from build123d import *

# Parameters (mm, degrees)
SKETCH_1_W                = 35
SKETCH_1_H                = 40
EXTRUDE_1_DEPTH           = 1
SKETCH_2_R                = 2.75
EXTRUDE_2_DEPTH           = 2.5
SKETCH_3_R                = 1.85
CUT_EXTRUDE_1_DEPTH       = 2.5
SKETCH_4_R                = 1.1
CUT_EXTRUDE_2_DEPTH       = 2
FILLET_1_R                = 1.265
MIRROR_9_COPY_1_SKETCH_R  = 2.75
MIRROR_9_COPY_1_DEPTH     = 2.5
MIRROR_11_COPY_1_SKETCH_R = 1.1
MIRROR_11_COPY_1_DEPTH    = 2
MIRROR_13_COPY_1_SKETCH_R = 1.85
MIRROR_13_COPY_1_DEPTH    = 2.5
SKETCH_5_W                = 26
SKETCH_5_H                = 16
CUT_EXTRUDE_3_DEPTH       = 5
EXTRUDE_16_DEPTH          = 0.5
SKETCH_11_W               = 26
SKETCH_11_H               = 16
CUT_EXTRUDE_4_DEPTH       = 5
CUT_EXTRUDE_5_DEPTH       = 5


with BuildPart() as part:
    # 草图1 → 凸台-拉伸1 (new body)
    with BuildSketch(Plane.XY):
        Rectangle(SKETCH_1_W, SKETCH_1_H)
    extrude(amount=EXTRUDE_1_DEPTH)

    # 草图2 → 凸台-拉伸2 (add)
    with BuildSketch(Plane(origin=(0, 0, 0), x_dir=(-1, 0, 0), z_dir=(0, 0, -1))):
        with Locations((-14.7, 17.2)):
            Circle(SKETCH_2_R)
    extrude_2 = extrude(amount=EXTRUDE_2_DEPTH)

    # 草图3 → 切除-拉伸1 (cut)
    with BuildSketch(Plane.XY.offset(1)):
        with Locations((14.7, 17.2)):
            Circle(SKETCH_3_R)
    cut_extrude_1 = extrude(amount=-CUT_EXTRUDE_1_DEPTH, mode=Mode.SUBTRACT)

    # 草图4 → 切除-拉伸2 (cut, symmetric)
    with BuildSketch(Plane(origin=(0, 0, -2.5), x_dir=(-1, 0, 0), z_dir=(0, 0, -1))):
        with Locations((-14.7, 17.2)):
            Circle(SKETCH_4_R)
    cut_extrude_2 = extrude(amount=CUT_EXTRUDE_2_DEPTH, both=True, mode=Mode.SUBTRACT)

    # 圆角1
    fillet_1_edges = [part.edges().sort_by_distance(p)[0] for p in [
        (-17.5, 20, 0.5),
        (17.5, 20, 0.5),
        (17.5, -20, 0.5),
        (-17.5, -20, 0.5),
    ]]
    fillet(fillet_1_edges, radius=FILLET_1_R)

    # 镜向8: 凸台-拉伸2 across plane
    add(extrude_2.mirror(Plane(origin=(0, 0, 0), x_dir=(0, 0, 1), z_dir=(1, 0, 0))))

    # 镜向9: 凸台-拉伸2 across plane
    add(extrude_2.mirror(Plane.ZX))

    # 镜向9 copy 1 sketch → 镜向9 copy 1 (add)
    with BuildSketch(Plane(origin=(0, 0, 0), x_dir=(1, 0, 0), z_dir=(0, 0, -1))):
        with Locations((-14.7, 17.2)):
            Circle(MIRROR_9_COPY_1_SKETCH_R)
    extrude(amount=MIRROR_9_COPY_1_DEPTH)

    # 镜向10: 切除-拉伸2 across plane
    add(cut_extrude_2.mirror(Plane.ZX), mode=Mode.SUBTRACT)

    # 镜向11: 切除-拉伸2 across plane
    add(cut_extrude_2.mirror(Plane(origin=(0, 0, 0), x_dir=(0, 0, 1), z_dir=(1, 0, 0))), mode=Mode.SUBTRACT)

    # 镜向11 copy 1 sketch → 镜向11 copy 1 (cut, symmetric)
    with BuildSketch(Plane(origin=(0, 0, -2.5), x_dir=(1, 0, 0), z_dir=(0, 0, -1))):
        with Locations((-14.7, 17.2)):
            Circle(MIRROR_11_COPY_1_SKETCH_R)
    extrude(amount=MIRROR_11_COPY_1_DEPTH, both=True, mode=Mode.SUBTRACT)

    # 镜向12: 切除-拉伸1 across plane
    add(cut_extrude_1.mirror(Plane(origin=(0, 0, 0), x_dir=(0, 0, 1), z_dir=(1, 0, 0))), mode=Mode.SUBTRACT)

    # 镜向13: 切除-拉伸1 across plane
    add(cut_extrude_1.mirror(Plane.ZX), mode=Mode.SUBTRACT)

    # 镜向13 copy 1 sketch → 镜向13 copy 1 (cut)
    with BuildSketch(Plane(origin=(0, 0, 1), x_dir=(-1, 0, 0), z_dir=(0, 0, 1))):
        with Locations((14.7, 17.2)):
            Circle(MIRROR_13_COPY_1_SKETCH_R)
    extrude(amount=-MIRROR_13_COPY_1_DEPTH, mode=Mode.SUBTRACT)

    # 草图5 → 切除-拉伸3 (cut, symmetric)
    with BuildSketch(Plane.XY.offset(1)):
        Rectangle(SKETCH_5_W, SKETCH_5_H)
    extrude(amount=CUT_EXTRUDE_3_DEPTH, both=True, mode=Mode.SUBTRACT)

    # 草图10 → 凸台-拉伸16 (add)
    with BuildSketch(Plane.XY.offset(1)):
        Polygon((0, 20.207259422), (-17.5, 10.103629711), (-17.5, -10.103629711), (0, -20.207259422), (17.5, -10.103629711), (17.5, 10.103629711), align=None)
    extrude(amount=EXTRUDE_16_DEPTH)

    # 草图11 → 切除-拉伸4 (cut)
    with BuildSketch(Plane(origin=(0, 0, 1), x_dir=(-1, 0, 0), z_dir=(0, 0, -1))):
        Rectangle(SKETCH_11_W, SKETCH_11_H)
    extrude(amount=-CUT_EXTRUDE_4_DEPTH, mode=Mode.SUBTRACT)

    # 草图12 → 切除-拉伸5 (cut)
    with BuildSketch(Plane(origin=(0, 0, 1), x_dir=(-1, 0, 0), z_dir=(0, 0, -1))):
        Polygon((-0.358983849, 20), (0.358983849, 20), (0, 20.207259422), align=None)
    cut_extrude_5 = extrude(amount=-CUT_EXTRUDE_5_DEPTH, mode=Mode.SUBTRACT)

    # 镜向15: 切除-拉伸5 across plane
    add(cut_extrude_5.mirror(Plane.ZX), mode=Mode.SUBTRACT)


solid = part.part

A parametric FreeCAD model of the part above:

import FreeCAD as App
import Part
import Sketcher
from FreeCAD import Vector
Q = App.Units.Quantity


def edges_at(feature, points):
    """Names of the edges that pass closest to the given points."""
    edges = feature.Shape.Edges
    near = lambda p: min(range(len(edges)), key=lambda i: edges[i].distToShape(Part.Vertex(*p))[0])
    return sorted({f"Edge{near(p) + 1}" for p in points})

doc = App.newDocument("Part")
body = doc.addObject("PartDesign::Body", "Body")

# Sketch on XY plane
sketch1 = doc.addObject("Sketcher::SketchObject", "Sketch")
body.addObject(sketch1)
sketch1.AttachmentSupport = (doc.XY_Plane, [""])
sketch1.MapMode = "FlatFace"
sketch1.addGeometry(Part.LineSegment(Vector(-18, 20, 0), Vector(-18, -20, 0)), False)
sketch1.addGeometry(Part.LineSegment(Vector(-18, -20, 0), Vector(18, -20, 0)), False)
sketch1.addGeometry(Part.LineSegment(Vector(18, -20, 0), Vector(18, 20, 0)), False)
sketch1.addGeometry(Part.LineSegment(Vector(18, 20, 0), Vector(-18, 20, 0)), False)
sketch1.addConstraint(Sketcher.Constraint("Coincident", 0, 2, 1, 1))
sketch1.addConstraint(Sketcher.Constraint("Coincident", 1, 2, 2, 1))
sketch1.addConstraint(Sketcher.Constraint("Coincident", 2, 2, 3, 1))
sketch1.addConstraint(Sketcher.Constraint("Coincident", 3, 2, 0, 1))
sketch1.addConstraint(Sketcher.Constraint("Vertical", 0))
sketch1.addConstraint(Sketcher.Constraint("Horizontal", 1))
sketch1.addConstraint(Sketcher.Constraint("Vertical", 2))
sketch1.addConstraint(Sketcher.Constraint("Horizontal", 3))
sketch1.addConstraint(Sketcher.Constraint("Symmetric", 0, 2, 2, 2, -1, 1))
sketch1.addConstraint(Sketcher.Constraint("DistanceX", 1, 1, 1, 2, Q("35 mm")))
sketch1.addConstraint(Sketcher.Constraint("DistanceY", 0, 2, 0, 1, Q("40 mm")))
pad1 = doc.addObject("PartDesign::Pad", "Pad")
body.addObject(pad1)
pad1.Profile = sketch1
pad1.Length = 1

# Sketch on XY plane
sketch2 = doc.addObject("Sketcher::SketchObject", "Sketch001")
body.addObject(sketch2)
sketch2.AttachmentSupport = (doc.XY_Plane, [""])
sketch2.MapMode = "FlatFace"
sketch2.addGeometry(Part.Circle(Vector(14.7, 17.2, 0), Vector(0, 0, 1), 2.8), False)
sketch2.addConstraint(Sketcher.Constraint("Diameter", 0, Q("5.5 mm")))
sketch2.addConstraint(Sketcher.Constraint("DistanceX", -1, 1, 0, 3, Q("14.7 mm")))
sketch2.addConstraint(Sketcher.Constraint("DistanceY", -1, 1, 0, 3, Q("17.2 mm")))
pad2 = doc.addObject("PartDesign::Pad", "Pad001")
body.addObject(pad2)
pad2.Profile = sketch2
pad2.Length = 2.5
pad2.Reversed = True

# Sketch on XY plane
sketch3 = doc.addObject("Sketcher::SketchObject", "Sketch002")
body.addObject(sketch3)
sketch3.AttachmentSupport = (doc.XY_Plane, [""])
sketch3.MapMode = "FlatFace"
sketch3.AttachmentOffset = App.Placement(Vector(0, 0, 1), App.Rotation())
sketch3.addGeometry(Part.Circle(Vector(14.7, 17.2, 0), Vector(0, 0, 1), 1.9), False)
sketch3.addConstraint(Sketcher.Constraint("Diameter", 0, Q("3.7 mm")))
sketch3.addConstraint(Sketcher.Constraint("DistanceX", -1, 1, 0, 3, Q("14.7 mm")))
sketch3.addConstraint(Sketcher.Constraint("DistanceY", -1, 1, 0, 3, Q("17.2 mm")))
pocket1 = doc.addObject("PartDesign::Pocket", "Pocket")
body.addObject(pocket1)
pocket1.Profile = sketch3
pocket1.Length = 2.5

# Sketch on XY plane
sketch4 = doc.addObject("Sketcher::SketchObject", "Sketch003")
body.addObject(sketch4)
sketch4.AttachmentSupport = (doc.XY_Plane, [""])
sketch4.MapMode = "FlatFace"
sketch4.AttachmentOffset = App.Placement(Vector(0, 0, -2.5), App.Rotation())
sketch4.addGeometry(Part.Circle(Vector(14.7, 17.2, 0), Vector(0, 0, 1), 1.1), False)
sketch4.addConstraint(Sketcher.Constraint("Diameter", 0, Q("2.2 mm")))
sketch4.addConstraint(Sketcher.Constraint("DistanceX", -1, 1, 0, 3, Q("14.7 mm")))
sketch4.addConstraint(Sketcher.Constraint("DistanceY", -1, 1, 0, 3, Q("17.2 mm")))
pocket2 = doc.addObject("PartDesign::Pocket", "Pocket001")
body.addObject(pocket2)
pocket2.Profile = sketch4
pocket2.Length = 4
pocket2.Midplane = True
doc.recompute()

fillet = doc.addObject("PartDesign::Fillet", "Fillet")
body.addObject(fillet)
fillet.Base = (pocket2, edges_at(pocket2, [
    (-17.5, 20, 0.5),
    (17.5, 20, 0.5),
    (17.5, -20, 0.5),
    (-17.5, -20, 0.5),
]))
fillet.Radius = 1.265
doc.recompute()

mirrored = doc.addObject("PartDesign::Mirrored", "Mirrored")
body.addObject(mirrored)
mirrored.Originals = [pad2]
mirrored.MirrorPlane = (doc.YZ_Plane, [""])
body.Tip = mirrored
doc.recompute()

mirrored2 = doc.addObject("PartDesign::Mirrored", "Mirrored001")
body.addObject(mirrored2)
mirrored2.Originals = [pad2]
mirrored2.MirrorPlane = (doc.XZ_Plane, [""])
body.Tip = mirrored2

# Sketch on XY plane
sketch5 = doc.addObject("Sketcher::SketchObject", "Sketch004")
body.addObject(sketch5)
sketch5.AttachmentSupport = (doc.XY_Plane, [""])
sketch5.MapMode = "FlatFace"
sketch5.addGeometry(Part.Circle(Vector(-14.7, -17.2, 0), Vector(0, 0, 1), 2.8), False)
sketch5.addConstraint(Sketcher.Constraint("Diameter", 0, Q("5.5 mm")))
sketch5.addConstraint(Sketcher.Constraint("DistanceX", 0, 3, -1, 1, Q("14.7 mm")))
sketch5.addConstraint(Sketcher.Constraint("DistanceY", 0, 3, -1, 1, Q("17.2 mm")))
pad3 = doc.addObject("PartDesign::Pad", "Pad002")
body.addObject(pad3)
pad3.Profile = sketch5
pad3.Length = 2.5
pad3.Reversed = True
doc.recompute()

mirrored3 = doc.addObject("PartDesign::Mirrored", "Mirrored002")
body.addObject(mirrored3)
mirrored3.Originals = [pocket2]
mirrored3.MirrorPlane = (doc.XZ_Plane, [""])
body.Tip = mirrored3
doc.recompute()

mirrored4 = doc.addObject("PartDesign::Mirrored", "Mirrored003")
body.addObject(mirrored4)
mirrored4.Originals = [pocket2]
mirrored4.MirrorPlane = (doc.YZ_Plane, [""])
body.Tip = mirrored4

# Sketch on XY plane
sketch6 = doc.addObject("Sketcher::SketchObject", "Sketch005")
body.addObject(sketch6)
sketch6.AttachmentSupport = (doc.XY_Plane, [""])
sketch6.MapMode = "FlatFace"
sketch6.AttachmentOffset = App.Placement(Vector(0, 0, -2.5), App.Rotation())
sketch6.addGeometry(Part.Circle(Vector(-14.7, -17.2, 0), Vector(0, 0, 1), 1.1), False)
sketch6.addConstraint(Sketcher.Constraint("Diameter", 0, Q("2.2 mm")))
sketch6.addConstraint(Sketcher.Constraint("DistanceX", 0, 3, -1, 1, Q("14.7 mm")))
sketch6.addConstraint(Sketcher.Constraint("DistanceY", 0, 3, -1, 1, Q("17.2 mm")))
pocket3 = doc.addObject("PartDesign::Pocket", "Pocket002")
body.addObject(pocket3)
pocket3.Profile = sketch6
pocket3.Length = 4
pocket3.Midplane = True
doc.recompute()

mirrored5 = doc.addObject("PartDesign::Mirrored", "Mirrored004")
body.addObject(mirrored5)
mirrored5.Originals = [pocket1]
mirrored5.MirrorPlane = (doc.YZ_Plane, [""])
body.Tip = mirrored5
doc.recompute()

mirrored6 = doc.addObject("PartDesign::Mirrored", "Mirrored005")
body.addObject(mirrored6)
mirrored6.Originals = [pocket1]
mirrored6.MirrorPlane = (doc.XZ_Plane, [""])
body.Tip = mirrored6

# Sketch on XY plane
sketch7 = doc.addObject("Sketcher::SketchObject", "Sketch006")
body.addObject(sketch7)
sketch7.AttachmentSupport = (doc.XY_Plane, [""])
sketch7.MapMode = "FlatFace"
sketch7.AttachmentOffset = App.Placement(Vector(0, 0, 1), App.Rotation())
sketch7.addGeometry(Part.Circle(Vector(-14.7, -17.2, 0), Vector(0, 0, 1), 1.9), False)
sketch7.addConstraint(Sketcher.Constraint("Diameter", 0, Q("3.7 mm")))
sketch7.addConstraint(Sketcher.Constraint("DistanceX", 0, 3, -1, 1, Q("14.7 mm")))
sketch7.addConstraint(Sketcher.Constraint("DistanceY", 0, 3, -1, 1, Q("17.2 mm")))
pocket4 = doc.addObject("PartDesign::Pocket", "Pocket003")
body.addObject(pocket4)
pocket4.Profile = sketch7
pocket4.Length = 2.5

# Sketch on XY plane
sketch8 = doc.addObject("Sketcher::SketchObject", "Sketch007")
body.addObject(sketch8)
sketch8.AttachmentSupport = (doc.XY_Plane, [""])
sketch8.MapMode = "FlatFace"
sketch8.AttachmentOffset = App.Placement(Vector(0, 0, 1), App.Rotation())
sketch8.addGeometry(Part.LineSegment(Vector(-13, 8, 0), Vector(-13, -8, 0)), False)
sketch8.addGeometry(Part.LineSegment(Vector(-13, -8, 0), Vector(13, -8, 0)), False)
sketch8.addGeometry(Part.LineSegment(Vector(13, -8, 0), Vector(13, 8, 0)), False)
sketch8.addGeometry(Part.LineSegment(Vector(13, 8, 0), Vector(-13, 8, 0)), False)
sketch8.addConstraint(Sketcher.Constraint("Coincident", 0, 2, 1, 1))
sketch8.addConstraint(Sketcher.Constraint("Coincident", 1, 2, 2, 1))
sketch8.addConstraint(Sketcher.Constraint("Coincident", 2, 2, 3, 1))
sketch8.addConstraint(Sketcher.Constraint("Coincident", 3, 2, 0, 1))
sketch8.addConstraint(Sketcher.Constraint("Vertical", 0))
sketch8.addConstraint(Sketcher.Constraint("Horizontal", 1))
sketch8.addConstraint(Sketcher.Constraint("Vertical", 2))
sketch8.addConstraint(Sketcher.Constraint("Horizontal", 3))
sketch8.addConstraint(Sketcher.Constraint("Symmetric", 0, 2, 2, 2, -1, 1))
sketch8.addConstraint(Sketcher.Constraint("DistanceX", 1, 1, 1, 2, Q("26 mm")))
sketch8.addConstraint(Sketcher.Constraint("DistanceY", 0, 2, 0, 1, Q("16 mm")))
pocket5 = doc.addObject("PartDesign::Pocket", "Pocket004")
body.addObject(pocket5)
pocket5.Profile = sketch8
pocket5.Length = 10
pocket5.Midplane = True

# Sketch on XY plane
sketch9 = doc.addObject("Sketcher::SketchObject", "Sketch008")
body.addObject(sketch9)
sketch9.AttachmentSupport = (doc.XY_Plane, [""])
sketch9.MapMode = "FlatFace"
sketch9.AttachmentOffset = App.Placement(Vector(0, 0, 1), App.Rotation())
sketch9.addGeometry(Part.LineSegment(Vector(0, 20, 0), Vector(-18, 10, 0)), False)
sketch9.addGeometry(Part.LineSegment(Vector(-18, 10, 0), Vector(-18, -10, 0)), False)
sketch9.addGeometry(Part.LineSegment(Vector(-18, -10, 0), Vector(0, -20, 0)), False)
sketch9.addGeometry(Part.LineSegment(Vector(0, -20, 0), Vector(18, -10, 0)), False)
sketch9.addGeometry(Part.LineSegment(Vector(18, -10, 0), Vector(18, 10, 0)), False)
sketch9.addGeometry(Part.LineSegment(Vector(18, 10, 0), Vector(0, 20, 0)), False)
sketch9.addConstraint(Sketcher.Constraint("Coincident", 0, 2, 1, 1))
sketch9.addConstraint(Sketcher.Constraint("Coincident", 1, 2, 2, 1))
sketch9.addConstraint(Sketcher.Constraint("Coincident", 2, 2, 3, 1))
sketch9.addConstraint(Sketcher.Constraint("Coincident", 3, 2, 4, 1))
sketch9.addConstraint(Sketcher.Constraint("Coincident", 4, 2, 5, 1))
sketch9.addConstraint(Sketcher.Constraint("Coincident", 5, 2, 0, 1))
sketch9.addConstraint(Sketcher.Constraint("Vertical", 1))
sketch9.addConstraint(Sketcher.Constraint("Vertical", 4))
sketch9.addConstraint(Sketcher.Constraint("Symmetric", 0, 2, 3, 2, -1, 1))
sketch9.addConstraint(Sketcher.Constraint("Symmetric", 2, 2, 5, 2, -1, 1))
sketch9.addConstraint(Sketcher.Constraint("PointOnObject", 2, 2, -2))
sketch9.addConstraint(Sketcher.Constraint("Parallel", 2, 5))
sketch9.addConstraint(Sketcher.Constraint("Horizontal", 1, 2, 3, 2))
sketch9.addConstraint(Sketcher.Constraint("Angle", 0, Q("-150 deg")))
sketch9.addConstraint(Sketcher.Constraint("DistanceX", 1, 2, 3, 2, Q("35 mm")))
sketch9.addConstraint(Sketcher.Constraint("DistanceY", 1, 2, 1, 1, Q("20.207259 mm")))
pad4 = doc.addObject("PartDesign::Pad", "Pad003")
body.addObject(pad4)
pad4.Profile = sketch9
pad4.Length = 0.5

# Sketch on XY plane
sketch10 = doc.addObject("Sketcher::SketchObject", "Sketch009")
body.addObject(sketch10)
sketch10.AttachmentSupport = (doc.XY_Plane, [""])
sketch10.MapMode = "FlatFace"
sketch10.AttachmentOffset = App.Placement(Vector(0, 0, 1), App.Rotation())
sketch10.addGeometry(Part.LineSegment(Vector(13, 8, 0), Vector(13, -8, 0)), False)
sketch10.addGeometry(Part.LineSegment(Vector(13, -8, 0), Vector(-13, -8, 0)), False)
sketch10.addGeometry(Part.LineSegment(Vector(-13, -8, 0), Vector(-13, 8, 0)), False)
sketch10.addGeometry(Part.LineSegment(Vector(-13, 8, 0), Vector(13, 8, 0)), False)
sketch10.addConstraint(Sketcher.Constraint("Coincident", 0, 2, 1, 1))
sketch10.addConstraint(Sketcher.Constraint("Coincident", 1, 2, 2, 1))
sketch10.addConstraint(Sketcher.Constraint("Coincident", 2, 2, 3, 1))
sketch10.addConstraint(Sketcher.Constraint("Coincident", 3, 2, 0, 1))
sketch10.addConstraint(Sketcher.Constraint("Vertical", 0))
sketch10.addConstraint(Sketcher.Constraint("Horizontal", 1))
sketch10.addConstraint(Sketcher.Constraint("Vertical", 2))
sketch10.addConstraint(Sketcher.Constraint("Horizontal", 3))
sketch10.addConstraint(Sketcher.Constraint("Symmetric", 0, 2, 2, 2, -1, 1))
sketch10.addConstraint(Sketcher.Constraint("DistanceX", 1, 2, 1, 1, Q("26 mm")))
sketch10.addConstraint(Sketcher.Constraint("DistanceY", 0, 2, 0, 1, Q("16 mm")))
pocket6 = doc.addObject("PartDesign::Pocket", "Pocket005")
body.addObject(pocket6)
pocket6.Profile = sketch10
pocket6.Length = 5
pocket6.Reversed = True

# Sketch on XY plane
sketch11 = doc.addObject("Sketcher::SketchObject", "Sketch010")
body.addObject(sketch11)
sketch11.AttachmentSupport = (doc.XY_Plane, [""])
sketch11.MapMode = "FlatFace"
sketch11.AttachmentOffset = App.Placement(Vector(0, 0, 1), App.Rotation())
sketch11.addGeometry(Part.LineSegment(Vector(0.36, 20, 0), Vector(-0.36, 20, 0)), False)
sketch11.addGeometry(Part.LineSegment(Vector(-0.36, 20, 0), Vector(0, 20.21, 0)), False)
sketch11.addGeometry(Part.LineSegment(Vector(0, 20.21, 0), Vector(0.36, 20, 0)), False)
sketch11.addConstraint(Sketcher.Constraint("Coincident", 0, 2, 1, 1))
sketch11.addConstraint(Sketcher.Constraint("Coincident", 1, 2, 2, 1))
sketch11.addConstraint(Sketcher.Constraint("Coincident", 2, 2, 0, 1))
sketch11.addConstraint(Sketcher.Constraint("Horizontal", 0))
sketch11.addConstraint(Sketcher.Constraint("PointOnObject", 1, 2, -2))
sketch11.addConstraint(Sketcher.Constraint("Equal", 1, 2))
sketch11.addConstraint(Sketcher.Constraint("Angle", 1, Q("30 deg")))
sketch11.addConstraint(Sketcher.Constraint("DistanceY", -1, 1, 0, 2, Q("20 mm")))
sketch11.addConstraint(Sketcher.Constraint("Distance", 1, Q("0.414519 mm")))
pocket7 = doc.addObject("PartDesign::Pocket", "Pocket006")
body.addObject(pocket7)
pocket7.Profile = sketch11
pocket7.Length = 5
pocket7.Reversed = True
doc.recompute()

mirrored7 = doc.addObject("PartDesign::Mirrored", "Mirrored006")
body.addObject(mirrored7)
mirrored7.Originals = [pocket7]
mirrored7.MirrorPlane = (doc.XZ_Plane, [""])
body.Tip = mirrored7

doc.recompute()
